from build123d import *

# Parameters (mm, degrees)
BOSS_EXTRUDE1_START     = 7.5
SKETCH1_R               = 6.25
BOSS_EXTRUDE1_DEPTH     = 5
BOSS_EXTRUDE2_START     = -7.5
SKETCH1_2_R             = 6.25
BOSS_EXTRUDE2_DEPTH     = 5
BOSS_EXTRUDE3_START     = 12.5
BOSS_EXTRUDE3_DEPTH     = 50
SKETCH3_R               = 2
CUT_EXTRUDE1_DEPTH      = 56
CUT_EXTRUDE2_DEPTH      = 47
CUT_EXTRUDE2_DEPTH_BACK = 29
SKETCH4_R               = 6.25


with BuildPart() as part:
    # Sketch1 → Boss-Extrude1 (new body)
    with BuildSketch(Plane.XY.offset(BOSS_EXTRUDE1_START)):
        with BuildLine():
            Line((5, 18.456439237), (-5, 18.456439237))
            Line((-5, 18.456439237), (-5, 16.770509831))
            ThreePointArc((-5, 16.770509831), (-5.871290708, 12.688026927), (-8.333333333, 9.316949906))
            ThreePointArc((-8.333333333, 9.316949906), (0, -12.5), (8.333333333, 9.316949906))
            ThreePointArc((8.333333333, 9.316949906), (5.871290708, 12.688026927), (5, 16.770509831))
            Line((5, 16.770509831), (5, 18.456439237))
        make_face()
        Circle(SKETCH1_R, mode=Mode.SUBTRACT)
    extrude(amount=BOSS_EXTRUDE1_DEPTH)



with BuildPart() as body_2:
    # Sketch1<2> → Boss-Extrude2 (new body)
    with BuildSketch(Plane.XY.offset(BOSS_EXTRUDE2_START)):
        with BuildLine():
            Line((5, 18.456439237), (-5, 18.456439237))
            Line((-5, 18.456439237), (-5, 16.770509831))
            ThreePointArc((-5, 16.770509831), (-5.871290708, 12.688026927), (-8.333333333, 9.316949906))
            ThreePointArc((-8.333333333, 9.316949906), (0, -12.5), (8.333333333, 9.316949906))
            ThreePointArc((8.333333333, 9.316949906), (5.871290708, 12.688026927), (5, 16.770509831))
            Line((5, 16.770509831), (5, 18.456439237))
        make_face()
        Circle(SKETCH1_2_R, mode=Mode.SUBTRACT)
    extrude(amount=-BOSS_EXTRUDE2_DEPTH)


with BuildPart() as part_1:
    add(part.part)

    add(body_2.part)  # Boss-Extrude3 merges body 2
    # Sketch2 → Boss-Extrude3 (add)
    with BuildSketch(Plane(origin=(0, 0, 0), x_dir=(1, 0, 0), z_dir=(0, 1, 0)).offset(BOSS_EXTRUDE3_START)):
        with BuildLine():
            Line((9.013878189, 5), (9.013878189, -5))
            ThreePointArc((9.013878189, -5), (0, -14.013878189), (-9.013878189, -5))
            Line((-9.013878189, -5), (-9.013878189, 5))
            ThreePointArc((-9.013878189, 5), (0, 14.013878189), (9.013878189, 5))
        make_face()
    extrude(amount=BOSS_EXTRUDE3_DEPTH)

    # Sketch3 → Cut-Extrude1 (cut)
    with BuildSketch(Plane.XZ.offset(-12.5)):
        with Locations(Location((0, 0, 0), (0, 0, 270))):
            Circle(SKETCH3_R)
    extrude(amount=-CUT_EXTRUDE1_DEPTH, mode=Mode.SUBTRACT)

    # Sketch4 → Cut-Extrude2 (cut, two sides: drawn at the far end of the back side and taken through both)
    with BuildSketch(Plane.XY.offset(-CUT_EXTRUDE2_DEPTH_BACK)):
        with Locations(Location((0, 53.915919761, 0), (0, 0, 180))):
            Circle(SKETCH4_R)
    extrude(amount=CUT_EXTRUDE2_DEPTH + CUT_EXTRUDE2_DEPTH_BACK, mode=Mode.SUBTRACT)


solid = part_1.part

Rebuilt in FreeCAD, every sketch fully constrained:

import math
import FreeCAD as App
import Part
import Sketcher

doc = App.newDocument("Part")
params = doc.addObject("Spreadsheet::Sheet", "Params")
for row, (alias, value) in enumerate([
    ("sketch1_radius", "10 mm"),
    ("sketch1_diameter", "12.5 mm"),
    ("sketch1_radius2", "12.5 mm"),
    ("sketch1_width", "10 mm"),
    ("pad1_length", "5 mm"),
    ("sketch2_radius", "10 mm"),
    ("sketch2_diameter", "12.5 mm"),
    ("sketch2_radius2", "12.5 mm"),
    ("sketch2_width", "10 mm"),
    ("pad2_length", "5 mm"),
    ("sketch3_height", "10 mm"),
    ("pad3_length", "50 mm"),
    ("sketch4_diameter", "4 mm"),
    ("pocket1_length", "56 mm"),
    ("sketch5_diameter", "12.5 mm"),
], start=1):
    params.set(f"A{row}", alias)
    params.set(f"B{row}", "=" + value)
    params.setAlias(f"B{row}", alias)

body = doc.addObject("PartDesign::Body", "Body")

sketch1 = body.newObject("Sketcher::SketchObject", "Sketch")
sketch1.AttachmentSupport = (doc.getObject("XY_Plane"), [""])
sketch1.MapMode = "FlatFace"
sketch1.AttachmentOffset = App.Placement(App.Vector(0, 0, 7.5), App.Rotation())
sketch1.addGeometry([
    Part.LineSegment(App.Vector(5, 18.5, 0), App.Vector(-5, 18.5, 0)),
    Part.LineSegment(App.Vector(-5, 18.5, 0), App.Vector(-5, 16.8, 0)),
    Part.ArcOfCircle(Part.Circle(App.Vector(-15, 16.8, 0), App.Vector(0, 0, 1), 10), math.radians(-48), math.radians(0)),
    Part.ArcOfCircle(Part.Circle(App.Vector(0, 0, 0), App.Vector(0, 0, 1), 12.5), math.radians(132), math.radians(408)),
    Part.ArcOfCircle(Part.Circle(App.Vector(15, 16.8, 0), App.Vector(0, 0, 1), 10), math.radians(180), math.radians(228)),
    Part.LineSegment(App.Vector(5, 16.8, 0), App.Vector(5, 18.5, 0)),
    Part.Circle(App.Vector(0, 0, 0), App.Vector(0, 0, 1), 6.2),
], False)
sketch1.addConstraint([
    Sketcher.Constraint("Coincident", 0, 2, 1, 1),
    Sketcher.Constraint("Tangent", 1, 2, 2, 2),
    Sketcher.Constraint("Tangent", 2, 1, 3, 1),
    Sketcher.Constraint("Tangent", 3, 2, 4, 2),
    Sketcher.Constraint("Tangent", 4, 1, 5, 1),
    Sketcher.Constraint("Coincident", 5, 2, 0, 1),
    Sketcher.Constraint("Horizontal", 0),
    Sketcher.Constraint("Vertical", 1),
    Sketcher.Constraint("Vertical", 5),
    Sketcher.Constraint("Coincident", 3, 3, -1, 1),
    Sketcher.Constraint("Coincident", 6, 3, -1, 1),
    Sketcher.Constraint("Equal", 2, 4),
    Sketcher.Constraint("Horizontal", 2, 3, 4, 3),
    Sketcher.Constraint("Radius", 2, 10.0),
    Sketcher.Constraint("Diameter", 6, 12.5),
    Sketcher.Constraint("Radius", 3, 12.5),
    Sketcher.Constraint("DistanceX", 0, 2, 0, 1, 10.0),
    Sketcher.Constraint("DistanceY", 1, 2, 1, 1, 1.685929),
])
sketch1.setExpression("Constraints[13]", "Params.sketch1_radius")
sketch1.setExpression("Constraints[14]", "Params.sketch1_diameter")
sketch1.setExpression("Constraints[15]", "Params.sketch1_radius2")
sketch1.setExpression("Constraints[16]", "Params.sketch1_width")
pad1 = body.newObject("PartDesign::Pad", "Pad")
pad1.Profile = sketch1
pad1.setExpression("Length", "Params.pad1_length")
body2 = doc.addObject("PartDesign::Body", "Body001")

sketch2 = body2.newObject("Sketcher::SketchObject", "Sketch001")
sketch2.AttachmentSupport = (doc.getObject("XY_Plane001"), [""])
sketch2.MapMode = "FlatFace"
sketch2.AttachmentOffset = App.Placement(App.Vector(0, 0, -7.5), App.Rotation())
sketch2.addGeometry([
    Part.LineSegment(App.Vector(5, 18.5, 0), App.Vector(-5, 18.5, 0)),
    Part.LineSegment(App.Vector(-5, 18.5, 0), App.Vector(-5, 16.8, 0)),
    Part.ArcOfCircle(Part.Circle(App.Vector(-15, 16.8, 0), App.Vector(0, 0, 1), 10), math.radians(-48), math.radians(0)),
    Part.ArcOfCircle(Part.Circle(App.Vector(0, 0, 0), App.Vector(0, 0, 1), 12.5), math.radians(132), math.radians(408)),
    Part.ArcOfCircle(Part.Circle(App.Vector(15, 16.8, 0), App.Vector(0, 0, 1), 10), math.radians(180), math.radians(228)),
    Part.LineSegment(App.Vector(5, 16.8, 0), App.Vector(5, 18.5, 0)),
    Part.Circle(App.Vector(0, 0, 0), App.Vector(0, 0, 1), 6.2),
], False)
sketch2.addConstraint([
    Sketcher.Constraint("Coincident", 0, 2, 1, 1),
    Sketcher.Constraint("Tangent", 1, 2, 2, 2),
    Sketcher.Constraint("Tangent", 2, 1, 3, 1),
    Sketcher.Constraint("Tangent", 3, 2, 4, 2),
    Sketcher.Constraint("Tangent", 4, 1, 5, 1),
    Sketcher.Constraint("Coincident", 5, 2, 0, 1),
    Sketcher.Constraint("Horizontal", 0),
    Sketcher.Constraint("Vertical", 1),
    Sketcher.Constraint("Vertical", 5),
    Sketcher.Constraint("Coincident", 3, 3, -1, 1),
    Sketcher.Constraint("Coincident", 6, 3, -1, 1),
    Sketcher.Constraint("Equal", 2, 4),
    Sketcher.Constraint("Horizontal", 2, 3, 4, 3),
    Sketcher.Constraint("Radius", 2, 10.0),
    Sketcher.Constraint("Diameter", 6, 12.5),
    Sketcher.Constraint("Radius", 3, 12.5),
    Sketcher.Constraint("DistanceX", 0, 2, 0, 1, 10.0),
    Sketcher.Constraint("DistanceY", 1, 2, 1, 1, 1.685929),
])
sketch2.setExpression("Constraints[13]", "Params.sketch2_radius")
sketch2.setExpression("Constraints[14]", "Params.sketch2_diameter")
sketch2.setExpression("Constraints[15]", "Params.sketch2_radius2")
sketch2.setExpression("Constraints[16]", "Params.sketch2_width")
pad2 = body2.newObject("PartDesign::Pad", "Pad001")
pad2.Profile = sketch2
pad2.setExpression("Length", "Params.pad2_length")
pad2.Reversed = True
body.AllowCompound = True
doc.recompute()

boolean = body.newObject("PartDesign::Boolean", "Boolean")
boolean.Type = "Fuse"
boolean.addObjects([body2])

sketch3 = body.newObject("Sketcher::SketchObject", "Sketch002")
sketch3.AttachmentSupport = (doc.getObject("XZ_Plane"), [""])
sketch3.MapMode = "FlatFace"
sketch3.AttachmentOffset = App.Placement(App.Vector(0, 0, -12.5), App.Rotation())
sketch3.addGeometry([
    Part.LineSegment(App.Vector(9, 5, 0), App.Vector(9, -5, 0)),
    Part.ArcOfCircle(Part.Circle(App.Vector(0, -5, 0), App.Vector(0, 0, 1), 9), math.radians(180), math.radians(360)),
    Part.LineSegment(App.Vector(-9, -5, 0), App.Vector(-9, 5, 0)),
    Part.ArcOfCircle(Part.Circle(App.Vector(0, 5, 0), App.Vector(0, 0, 1), 9), math.radians(0), math.radians(180)),
], False)
sketch3.addConstraint([
    Sketcher.Constraint("Tangent", 0, 2, 1, 2),
    Sketcher.Constraint("Tangent", 1, 1, 2, 1),
    Sketcher.Constraint("Tangent", 2, 2, 3, 2),
    Sketcher.Constraint("Tangent", 3, 1, 0, 1),
    Sketcher.Constraint("Vertical", 0),
    Sketcher.Constraint("Vertical", 2),
    Sketcher.Constraint("Symmetric", 1, 3, 3, 3, -1, 1),
    Sketcher.Constraint("DistanceY", 0, 2, 0, 1, 10.0),
    Sketcher.Constraint("Radius", 1, 9.013878),
])
sketch3.setExpression("Constraints[7]", "Params.sketch3_height")
pad3 = body.newObject("PartDesign::Pad", "Pad002")
pad3.Profile = sketch3
pad3.setExpression("Length", "Params.pad3_length")
pad3.Reversed = True

sketch4 = body.newObject("Sketcher::SketchObject", "Sketch003")
sketch4.AttachmentSupport = (doc.getObject("XZ_Plane"), [""])
sketch4.MapMode = "FlatFace"
sketch4.AttachmentOffset = App.Placement(App.Vector(0, 0, -12.5), App.Rotation())
sketch4.addGeometry(Part.Circle(App.Vector(0, 0, 0), App.Vector(0, 0, 1), 2), False)
sketch4.addConstraint([
    Sketcher.Constraint("Coincident", 0, 3, -1, 1),
    Sketcher.Constraint("Diameter", 0, 4.0),
])
sketch4.setExpression("Constraints[1]", "Params.sketch4_diameter")
pocket1 = body.newObject("PartDesign::Pocket", "Pocket")
pocket1.Profile = sketch4
pocket1.setExpression("Length", "Params.pocket1_length")

sketch5 = body.newObject("Sketcher::SketchObject", "Sketch004")
sketch5.AttachmentSupport = (doc.getObject("XY_Plane"), [""])
sketch5.MapMode = "FlatFace"
sketch5.addGeometry(Part.Circle(App.Vector(0, 54, 0), App.Vector(0, 0, 1), 6), False)
sketch5.addConstraint([
    Sketcher.Constraint("PointOnObject", 0, 3, -2),
    Sketcher.Constraint("Diameter", 0, 12.5),
    Sketcher.Constraint("DistanceY", -1, 1, 0, 3, 53.91592),
])
sketch5.setExpression("Constraints[1]", "Params.sketch5_diameter")
pocket2 = body.newObject("PartDesign::Pocket", "Pocket001")
pocket2.Profile = sketch5
pocket2.Type = "ThroughAll"
pocket2.Midplane = True

doc.recompute()
